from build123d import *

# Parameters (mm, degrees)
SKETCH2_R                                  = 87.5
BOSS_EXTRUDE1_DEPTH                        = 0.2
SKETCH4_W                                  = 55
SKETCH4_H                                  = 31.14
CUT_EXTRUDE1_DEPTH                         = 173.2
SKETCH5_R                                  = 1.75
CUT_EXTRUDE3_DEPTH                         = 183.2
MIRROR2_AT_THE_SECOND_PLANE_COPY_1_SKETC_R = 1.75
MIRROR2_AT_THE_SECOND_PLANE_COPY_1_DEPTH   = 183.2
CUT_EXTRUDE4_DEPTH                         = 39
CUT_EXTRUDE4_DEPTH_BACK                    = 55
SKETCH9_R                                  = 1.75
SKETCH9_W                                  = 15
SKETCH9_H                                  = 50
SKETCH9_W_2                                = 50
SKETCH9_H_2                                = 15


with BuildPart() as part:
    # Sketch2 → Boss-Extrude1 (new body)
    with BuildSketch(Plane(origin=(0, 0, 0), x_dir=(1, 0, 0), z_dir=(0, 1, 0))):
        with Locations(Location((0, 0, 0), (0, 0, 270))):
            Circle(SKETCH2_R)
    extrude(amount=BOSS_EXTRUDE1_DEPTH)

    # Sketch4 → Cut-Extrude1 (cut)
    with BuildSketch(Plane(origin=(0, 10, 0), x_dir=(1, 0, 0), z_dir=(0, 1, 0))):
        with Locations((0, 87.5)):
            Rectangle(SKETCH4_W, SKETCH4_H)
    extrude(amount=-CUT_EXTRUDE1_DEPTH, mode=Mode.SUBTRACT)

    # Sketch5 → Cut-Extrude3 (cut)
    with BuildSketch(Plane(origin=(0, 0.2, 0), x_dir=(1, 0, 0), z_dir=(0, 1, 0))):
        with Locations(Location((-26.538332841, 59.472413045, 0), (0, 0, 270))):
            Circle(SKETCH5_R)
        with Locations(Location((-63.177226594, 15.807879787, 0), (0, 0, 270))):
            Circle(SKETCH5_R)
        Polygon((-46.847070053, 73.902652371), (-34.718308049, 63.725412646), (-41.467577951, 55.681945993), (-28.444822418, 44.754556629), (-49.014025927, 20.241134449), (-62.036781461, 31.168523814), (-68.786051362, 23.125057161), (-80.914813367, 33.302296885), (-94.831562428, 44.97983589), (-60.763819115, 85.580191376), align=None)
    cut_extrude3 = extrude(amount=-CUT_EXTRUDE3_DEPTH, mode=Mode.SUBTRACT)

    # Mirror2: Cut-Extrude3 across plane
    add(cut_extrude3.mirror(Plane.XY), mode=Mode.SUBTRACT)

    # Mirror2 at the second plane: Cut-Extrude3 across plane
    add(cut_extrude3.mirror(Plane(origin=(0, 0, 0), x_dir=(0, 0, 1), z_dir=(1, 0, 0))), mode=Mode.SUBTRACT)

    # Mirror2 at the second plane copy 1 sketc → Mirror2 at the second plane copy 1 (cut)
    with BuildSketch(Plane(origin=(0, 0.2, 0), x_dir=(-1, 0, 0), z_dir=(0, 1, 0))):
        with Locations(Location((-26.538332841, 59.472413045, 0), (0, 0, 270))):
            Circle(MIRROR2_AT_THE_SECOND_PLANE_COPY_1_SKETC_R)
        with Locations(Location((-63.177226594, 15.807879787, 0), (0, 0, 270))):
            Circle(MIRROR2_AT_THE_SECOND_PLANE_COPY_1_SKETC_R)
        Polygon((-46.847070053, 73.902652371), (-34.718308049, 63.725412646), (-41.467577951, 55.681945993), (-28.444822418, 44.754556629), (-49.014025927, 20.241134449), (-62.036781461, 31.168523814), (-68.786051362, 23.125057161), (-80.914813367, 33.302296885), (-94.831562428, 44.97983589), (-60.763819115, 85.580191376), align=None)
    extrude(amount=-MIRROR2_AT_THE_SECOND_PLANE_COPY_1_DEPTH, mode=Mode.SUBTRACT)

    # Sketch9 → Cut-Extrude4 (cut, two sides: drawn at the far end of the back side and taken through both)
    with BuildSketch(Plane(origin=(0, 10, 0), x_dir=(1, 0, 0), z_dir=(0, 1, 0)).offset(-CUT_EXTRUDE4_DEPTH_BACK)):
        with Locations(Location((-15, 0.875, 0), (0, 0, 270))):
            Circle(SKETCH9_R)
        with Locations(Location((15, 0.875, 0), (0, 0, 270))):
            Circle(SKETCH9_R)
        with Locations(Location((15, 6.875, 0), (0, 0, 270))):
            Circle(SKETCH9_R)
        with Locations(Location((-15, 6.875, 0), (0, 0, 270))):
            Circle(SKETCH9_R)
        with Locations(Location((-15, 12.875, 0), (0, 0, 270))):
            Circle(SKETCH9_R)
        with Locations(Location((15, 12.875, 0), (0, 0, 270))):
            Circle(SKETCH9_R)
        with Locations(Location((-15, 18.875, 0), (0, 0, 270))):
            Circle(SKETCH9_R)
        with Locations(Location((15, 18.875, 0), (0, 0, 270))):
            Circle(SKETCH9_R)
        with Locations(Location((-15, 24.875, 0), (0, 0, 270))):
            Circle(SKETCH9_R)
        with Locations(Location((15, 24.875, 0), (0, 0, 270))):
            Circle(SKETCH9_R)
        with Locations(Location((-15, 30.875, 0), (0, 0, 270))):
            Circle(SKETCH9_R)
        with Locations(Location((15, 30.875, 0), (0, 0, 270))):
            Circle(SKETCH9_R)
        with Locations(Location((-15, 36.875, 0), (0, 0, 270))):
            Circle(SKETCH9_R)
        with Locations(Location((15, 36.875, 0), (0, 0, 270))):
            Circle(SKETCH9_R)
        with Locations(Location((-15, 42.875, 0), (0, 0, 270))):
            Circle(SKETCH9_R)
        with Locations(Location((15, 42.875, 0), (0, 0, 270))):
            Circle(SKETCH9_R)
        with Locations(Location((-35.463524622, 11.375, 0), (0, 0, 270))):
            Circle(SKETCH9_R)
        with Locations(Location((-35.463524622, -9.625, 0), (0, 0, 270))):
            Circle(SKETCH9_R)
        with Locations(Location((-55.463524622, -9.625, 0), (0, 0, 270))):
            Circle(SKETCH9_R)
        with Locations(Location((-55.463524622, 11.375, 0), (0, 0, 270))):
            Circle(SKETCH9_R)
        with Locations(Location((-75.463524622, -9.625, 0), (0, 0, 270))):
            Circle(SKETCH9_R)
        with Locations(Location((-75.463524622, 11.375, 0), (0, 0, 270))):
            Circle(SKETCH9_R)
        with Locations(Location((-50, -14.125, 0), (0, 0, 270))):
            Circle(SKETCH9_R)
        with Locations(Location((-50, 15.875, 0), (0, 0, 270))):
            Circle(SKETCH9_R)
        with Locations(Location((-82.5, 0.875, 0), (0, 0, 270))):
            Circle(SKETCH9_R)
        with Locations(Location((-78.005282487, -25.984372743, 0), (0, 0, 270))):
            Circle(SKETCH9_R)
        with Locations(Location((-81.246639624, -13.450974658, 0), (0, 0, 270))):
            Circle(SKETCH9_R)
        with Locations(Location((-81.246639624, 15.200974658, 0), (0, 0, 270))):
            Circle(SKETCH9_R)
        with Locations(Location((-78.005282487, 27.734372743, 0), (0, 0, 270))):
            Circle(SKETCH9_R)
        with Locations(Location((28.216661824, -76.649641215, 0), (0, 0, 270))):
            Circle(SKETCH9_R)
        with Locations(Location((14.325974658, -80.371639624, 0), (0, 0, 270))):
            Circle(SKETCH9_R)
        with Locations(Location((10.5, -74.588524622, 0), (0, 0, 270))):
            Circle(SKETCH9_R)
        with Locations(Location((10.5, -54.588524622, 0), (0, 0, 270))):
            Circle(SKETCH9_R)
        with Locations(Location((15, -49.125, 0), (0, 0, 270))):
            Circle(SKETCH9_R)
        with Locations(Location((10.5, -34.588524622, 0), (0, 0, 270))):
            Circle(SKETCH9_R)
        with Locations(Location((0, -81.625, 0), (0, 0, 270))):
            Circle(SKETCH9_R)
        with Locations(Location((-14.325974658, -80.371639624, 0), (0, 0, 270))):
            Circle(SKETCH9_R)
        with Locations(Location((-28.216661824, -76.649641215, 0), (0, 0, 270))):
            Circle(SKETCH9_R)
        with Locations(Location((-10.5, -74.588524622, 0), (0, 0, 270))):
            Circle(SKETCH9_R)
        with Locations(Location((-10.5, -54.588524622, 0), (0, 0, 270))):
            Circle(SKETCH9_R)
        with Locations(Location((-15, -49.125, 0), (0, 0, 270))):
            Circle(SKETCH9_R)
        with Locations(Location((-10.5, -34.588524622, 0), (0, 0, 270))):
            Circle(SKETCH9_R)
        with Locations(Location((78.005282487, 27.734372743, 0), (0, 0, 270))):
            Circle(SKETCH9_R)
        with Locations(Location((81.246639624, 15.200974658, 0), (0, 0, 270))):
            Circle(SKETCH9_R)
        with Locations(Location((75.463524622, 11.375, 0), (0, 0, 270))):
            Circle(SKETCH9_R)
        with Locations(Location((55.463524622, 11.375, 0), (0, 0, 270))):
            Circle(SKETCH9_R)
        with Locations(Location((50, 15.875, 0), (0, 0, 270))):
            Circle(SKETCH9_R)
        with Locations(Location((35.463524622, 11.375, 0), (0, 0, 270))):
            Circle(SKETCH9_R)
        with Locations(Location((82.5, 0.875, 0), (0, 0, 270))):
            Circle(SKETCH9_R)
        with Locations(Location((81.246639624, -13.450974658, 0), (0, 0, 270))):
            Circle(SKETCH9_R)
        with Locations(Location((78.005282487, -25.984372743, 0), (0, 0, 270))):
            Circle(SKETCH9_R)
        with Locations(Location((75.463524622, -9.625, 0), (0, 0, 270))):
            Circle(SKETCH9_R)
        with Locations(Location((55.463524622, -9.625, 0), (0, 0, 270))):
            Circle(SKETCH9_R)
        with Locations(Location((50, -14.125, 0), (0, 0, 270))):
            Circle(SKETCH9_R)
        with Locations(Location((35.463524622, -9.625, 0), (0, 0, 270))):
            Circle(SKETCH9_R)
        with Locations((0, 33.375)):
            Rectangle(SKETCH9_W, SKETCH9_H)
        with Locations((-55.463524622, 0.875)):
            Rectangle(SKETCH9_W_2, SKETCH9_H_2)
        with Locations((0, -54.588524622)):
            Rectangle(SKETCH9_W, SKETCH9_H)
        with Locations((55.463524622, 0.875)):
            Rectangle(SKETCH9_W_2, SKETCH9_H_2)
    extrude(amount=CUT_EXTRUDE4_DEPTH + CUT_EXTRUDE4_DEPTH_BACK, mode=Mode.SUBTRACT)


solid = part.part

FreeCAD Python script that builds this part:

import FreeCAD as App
import Part
import Sketcher
from FreeCAD import Vector
Q = App.Units.Quantity


def add_polygon(sketch, points):
    """Adds a closed chain of lines whose ends are joined by coincident constraints."""
    first, n = sketch.GeometryCount, len(points)
    for a, b in zip(points, points[1:] + points[:1]):
        sketch.addGeometry(Part.LineSegment(App.Vector(*a, 0), App.Vector(*b, 0)), False)
    for i in range(n):
        sketch.addConstraint(Sketcher.Constraint("Coincident", first + i, 2, first + (i + 1) % n, 1))

doc = App.newDocument("Part")
body = doc.addObject("PartDesign::Body", "Body")

sketch1 = body.newObject("Sketcher::SketchObject", "Sketch")
sketch1.AttachmentSupport = (doc.getObject("XZ_Plane"), [""])
sketch1.MapMode = "FlatFace"
sketch1.addGeometry(Part.Circle(Vector(0, 0, 0), Vector(0, 0, 1), 87.5), False)
sketch1.addConstraint([
    Sketcher.Constraint("Coincident", 0, 3, -1, 1),
    Sketcher.Constraint("Diameter", 0, 175.0),
])
pad1 = body.newObject("PartDesign::Pad", "Pad")
pad1.Profile = sketch1
pad1.Length = 0.2
pad1.Reversed = True

sketch2 = body.newObject("Sketcher::SketchObject", "Sketch001")
sketch2.AttachmentSupport = (doc.getObject("XZ_Plane"), [""])
sketch2.MapMode = "FlatFace"
sketch2.AttachmentOffset = App.Placement(Vector(0, 0, -10), App.Rotation())
add_polygon(sketch2, [(-27.5, -103.07), (-27.5, -71.93), (27.5, -71.93), (27.5, -103.07)])
sketch2.addConstraint([
    Sketcher.Constraint("Vertical", 0),
    Sketcher.Constraint("Horizontal", 1),
    Sketcher.Constraint("Vertical", 2),
    Sketcher.Constraint("Horizontal", 3),
    Sketcher.Constraint("DistanceX", 1, 1, 1, 2, 55.0),
    Sketcher.Constraint("DistanceY", 0, 1, 0, 2, 31.14),
    Sketcher.Constraint("DistanceX", 0, 2, -1, 1, 27.5),
    Sketcher.Constraint("DistanceY", 0, 2, -1, 1, 71.93),
])
pocket1 = body.newObject("PartDesign::Pocket", "Pocket")
pocket1.Profile = sketch2
pocket1.Length = 173.2
pocket1.Reversed = True

sketch3 = body.newObject("Sketcher::SketchObject", "Sketch002")
sketch3.AttachmentSupport = (doc.getObject("XZ_Plane"), [""])
sketch3.MapMode = "FlatFace"
sketch3.AttachmentOffset = App.Placement(Vector(0, 0, -0.2), App.Rotation())
sketch3.addGeometry(Part.Circle(Vector(-26.538333, -59.472413, 0), Vector(0, 0, 1), 1.75), False)
sketch3.addGeometry(Part.Circle(Vector(-63.177227, -15.80788, 0), Vector(0, 0, 1), 1.75), False)
add_polygon(sketch3, [(-34.718308, -63.725413), (-46.84707, -73.902652), (-60.763819, -85.580191), (-94.831562, -44.979836), (-80.914813, -33.302297), (-68.786051, -23.125057), (-62.036781, -31.168524), (-49.014026, -20.241134), (-28.444822, -44.754557), (-41.467578, -55.681946)])
sketch3.addConstraint([
    Sketcher.Constraint("Equal", 0, 1),
    Sketcher.Constraint("Parallel", 2, 3),
    Sketcher.Constraint("Perpendicular", 3, 4),
    Sketcher.Constraint("Perpendicular", 4, 5),
    Sketcher.Constraint("Parallel", 5, 6),
    Sketcher.Constraint("Perpendicular", 6, 7),
    Sketcher.Constraint("Perpendicular", 7, 8),
    Sketcher.Constraint("Perpendicular", 8, 9),
    Sketcher.Constraint("Perpendicular", 9, 10),
    Sketcher.Constraint("Perpendicular", 10, 11),
    Sketcher.Constraint("Equal", 3, 5),
    Sketcher.Constraint("Equal", 2, 6),
    Sketcher.Constraint("Equal", 7, 11),
    Sketcher.Constraint("Diameter", 0, 3.5),
    Sketcher.Constraint("Angle", 2, Q("-140 deg")),
    Sketcher.Constraint("Distance", 4, 53.0),
    Sketcher.Constraint("Distance", 8, 17.0),
    Sketcher.Constraint("Distance", 9, 32.0),
    Sketcher.Constraint("DistanceY", 11, 2, 0, 3, 4.253),
    Sketcher.Constraint("DistanceX", 1, 3, 8, 2, 14.163201),
    Sketcher.Constraint("DistanceY", 1, 3, -1, 1, 15.80788),
    Sketcher.Constraint("DistanceX", 2, 2, -1, 1, 46.84707),
    Sketcher.Constraint("DistanceX", 3, 2, -1, 1, 60.763819),
    Sketcher.Constraint("DistanceY", 3, 2, -1, 1, 85.580191),
    Sketcher.Constraint("DistanceX", 6, 2, -1, 1, 68.786051),
    Sketcher.Constraint("DistanceX", 4, 2, 0, 3, 68.29323),
])
pocket2 = body.newObject("PartDesign::Pocket", "Pocket001")
pocket2.Profile = sketch3
pocket2.Length = 183.2
pocket2.Reversed = True
doc.recompute()

mirrored = body.newObject("PartDesign::Mirrored", "Mirrored")
mirrored.Originals = [pocket2]
mirrored.MirrorPlane = (doc.getObject("XY_Plane"), [""])
body.Tip = mirrored
doc.recompute()

mirrored2 = body.newObject("PartDesign::Mirrored", "Mirrored001")
mirrored2.Originals = [pocket2]
mirrored2.MirrorPlane = (doc.getObject("YZ_Plane"), [""])
body.Tip = mirrored2

sketch4 = body.newObject("Sketcher::SketchObject", "Sketch003")
sketch4.AttachmentSupport = (doc.getObject("XZ_Plane"), [""])
sketch4.MapMode = "FlatFace"
sketch4.AttachmentOffset = App.Placement(Vector(0, 0, -0.2), App.Rotation())
sketch4.addGeometry(Part.Circle(Vector(26.538333, 59.472413, 0), Vector(0, 0, 1), 1.75), False)
sketch4.addGeometry(Part.Circle(Vector(63.177227, 15.80788, 0), Vector(0, 0, 1), 1.75), False)
add_polygon(sketch4, [(34.718308, 63.725413), (46.84707, 73.902652), (60.763819, 85.580191), (94.831562, 44.979836), (80.914813, 33.302297), (68.786051, 23.125057), (62.036781, 31.168524), (49.014026, 20.241134), (28.444822, 44.754557), (41.467578, 55.681946)])
sketch4.addConstraint([
    Sketcher.Constraint("Equal", 0, 1),
    Sketcher.Constraint("Parallel", 2, 3),
    Sketcher.Constraint("Perpendicular", 3, 4),
    Sketcher.Constraint("Perpendicular", 4, 5),
    Sketcher.Constraint("Parallel", 5, 6),
    Sketcher.Constraint("Perpendicular", 6, 7),
    Sketcher.Constraint("Perpendicular", 7, 8),
    Sketcher.Constraint("Perpendicular", 8, 9),
    Sketcher.Constraint("Perpendicular", 9, 10),
    Sketcher.Constraint("Perpendicular", 10, 11),
    Sketcher.Constraint("Equal", 3, 5),
    Sketcher.Constraint("Equal", 2, 6),
    Sketcher.Constraint("Equal", 7, 11),
    Sketcher.Constraint("Diameter", 0, 3.5),
    Sketcher.Constraint("Angle", 2, Q("40 deg")),
    Sketcher.Constraint("Distance", 4, 53.0),
    Sketcher.Constraint("Distance", 8, 17.0),
    Sketcher.Constraint("Distance", 9, 32.0),
    Sketcher.Constraint("DistanceY", 0, 3, 11, 2, 4.253),
    Sketcher.Constraint("DistanceX", 8, 2, 1, 3, 14.163201),
    Sketcher.Constraint("DistanceY", -1, 1, 1, 3, 15.80788),
    Sketcher.Constraint("DistanceX", -1, 1, 2, 2, 46.84707),
    Sketcher.Constraint("DistanceX", -1, 1, 3, 2, 60.763819),
    Sketcher.Constraint("DistanceY", -1, 1, 3, 2, 85.580191),
    Sketcher.Constraint("DistanceX", -1, 1, 6, 2, 68.786051),
    Sketcher.Constraint("DistanceX", 0, 3, 4, 2, 68.29323),
])
pocket3 = body.newObject("PartDesign::Pocket", "Pocket002")
pocket3.Profile = sketch4
pocket3.Length = 183.2
pocket3.Reversed = True

sketch5 = body.newObject("Sketcher::SketchObject", "Sketch004")
sketch5.AttachmentSupport = (doc.getObject("XZ_Plane"), [""])
sketch5.MapMode = "FlatFace"
sketch5.AttachmentOffset = App.Placement(Vector(0, 0, -10), App.Rotation())
sketch5.addGeometry(Part.Circle(Vector(-15, -0.875, 0), Vector(0, 0, 1), 1.75), False)
sketch5.addGeometry(Part.Circle(Vector(15, -0.875, 0), Vector(0, 0, 1), 1.75), False)
sketch5.addGeometry(Part.Circle(Vector(15, -6.875, 0), Vector(0, 0, 1), 1.75), False)
sketch5.addGeometry(Part.Circle(Vector(-15, -6.875, 0), Vector(0, 0, 1), 1.75), False)
sketch5.addGeometry(Part.Circle(Vector(-15, -12.875, 0), Vector(0, 0, 1), 1.75), False)
sketch5.addGeometry(Part.Circle(Vector(15, -12.875, 0), Vector(0, 0, 1), 1.75), False)
sketch5.addGeometry(Part.Circle(Vector(-15, -18.875, 0), Vector(0, 0, 1), 1.75), False)
sketch5.addGeometry(Part.Circle(Vector(15, -18.875, 0), Vector(0, 0, 1), 1.75), False)
sketch5.addGeometry(Part.Circle(Vector(-15, -24.875, 0), Vector(0, 0, 1), 1.75), False)
sketch5.addGeometry(Part.Circle(Vector(15, -24.875, 0), Vector(0, 0, 1), 1.75), False)
sketch5.addGeometry(Part.Circle(Vector(-15, -30.875, 0), Vector(0, 0, 1), 1.75), False)
sketch5.addGeometry(Part.Circle(Vector(15, -30.875, 0), Vector(0, 0, 1), 1.75), False)
sketch5.addGeometry(Part.Circle(Vector(-15, -36.875, 0), Vector(0, 0, 1), 1.75), False)
sketch5.addGeometry(Part.Circle(Vector(15, -36.875, 0), Vector(0, 0, 1), 1.75), False)
sketch5.addGeometry(Part.Circle(Vector(-15, -42.875, 0), Vector(0, 0, 1), 1.75), False)
sketch5.addGeometry(Part.Circle(Vector(15, -42.875, 0), Vector(0, 0, 1), 1.75), False)
sketch5.addGeometry(Part.Circle(Vector(-35.463525, -11.375, 0), Vector(0, 0, 1), 1.75), False)
sketch5.addGeometry(Part.Circle(Vector(-35.463525, 9.625, 0), Vector(0, 0, 1), 1.75), False)
sketch5.addGeometry(Part.Circle(Vector(-55.463525, 9.625, 0), Vector(0, 0, 1), 1.75), False)
sketch5.addGeometry(Part.Circle(Vector(-55.463525, -11.375, 0), Vector(0, 0, 1), 1.75), False)
sketch5.addGeometry(Part.Circle(Vector(-75.463525, 9.625, 0), Vector(0, 0, 1), 1.75), False)
sketch5.addGeometry(Part.Circle(Vector(-75.463525, -11.375, 0), Vector(0, 0, 1), 1.75), False)
sketch5.addGeometry(Part.Circle(Vector(-50, 14.125, 0), Vector(0, 0, 1), 1.75), False)
sketch5.addGeometry(Part.Circle(Vector(-50, -15.875, 0), Vector(0, 0, 1), 1.75), False)
sketch5.addGeometry(Part.Circle(Vector(-82.5, -0.875, 0), Vector(0, 0, 1), 1.75), False)
sketch5.addGeometry(Part.Circle(Vector(-78.005282, 25.984373, 0), Vector(0, 0, 1), 1.75), False)
sketch5.addGeometry(Part.Circle(Vector(-81.24664, 13.450975, 0), Vector(0, 0, 1), 1.75), False)
sketch5.addGeometry(Part.Circle(Vector(-81.24664, -15.200975, 0), Vector(0, 0, 1), 1.75), False)
sketch5.addGeometry(Part.Circle(Vector(-78.005282, -27.734373, 0), Vector(0, 0, 1), 1.75), False)
sketch5.addGeometry(Part.Circle(Vector(28.216662, 76.649641, 0), Vector(0, 0, 1), 1.75), False)
sketch5.addGeometry(Part.Circle(Vector(14.325975, 80.37164, 0), Vector(0, 0, 1), 1.75), False)
sketch5.addGeometry(Part.Circle(Vector(10.5, 74.588525, 0), Vector(0, 0, 1), 1.75), False)
sketch5.addGeometry(Part.Circle(Vector(10.5, 54.588525, 0), Vector(0, 0, 1), 1.75), False)
sketch5.addGeometry(Part.Circle(Vector(15, 49.125, 0), Vector(0, 0, 1), 1.75), False)
sketch5.addGeometry(Part.Circle(Vector(10.5, 34.588525, 0), Vector(0, 0, 1), 1.75), False)
sketch5.addGeometry(Part.Circle(Vector(0, 81.625, 0), Vector(0, 0, 1), 1.75), False)
sketch5.addGeometry(Part.Circle(Vector(-14.325975, 80.37164, 0), Vector(0, 0, 1), 1.75), False)
sketch5.addGeometry(Part.Circle(Vector(-28.216662, 76.649641, 0), Vector(0, 0, 1), 1.75), False)
sketch5.addGeometry(Part.Circle(Vector(-10.5, 74.588525, 0), Vector(0, 0, 1), 1.75), False)
sketch5.addGeometry(Part.Circle(Vector(-10.5, 54.588525, 0), Vector(0, 0, 1), 1.75), False)
sketch5.addGeometry(Part.Circle(Vector(-15, 49.125, 0), Vector(0, 0, 1), 1.75), False)
sketch5.addGeometry(Part.Circle(Vector(-10.5, 34.588525, 0), Vector(0, 0, 1), 1.75), False)
sketch5.addGeometry(Part.Circle(Vector(78.005282, -27.734373, 0), Vector(0, 0, 1), 1.75), False)
sketch5.addGeometry(Part.Circle(Vector(81.24664, -15.200975, 0), Vector(0, 0, 1), 1.75), False)
sketch5.addGeometry(Part.Circle(Vector(75.463525, -11.375, 0), Vector(0, 0, 1), 1.75), False)
sketch5.addGeometry(Part.Circle(Vector(55.463525, -11.375, 0), Vector(0, 0, 1), 1.75), False)
sketch5.addGeometry(Part.Circle(Vector(50, -15.875, 0), Vector(0, 0, 1), 1.75), False)
sketch5.addGeometry(Part.Circle(Vector(35.463525, -11.375, 0), Vector(0, 0, 1), 1.75), False)
sketch5.addGeometry(Part.Circle(Vector(82.5, -0.875, 0), Vector(0, 0, 1), 1.75), False)
sketch5.addGeometry(Part.Circle(Vector(81.24664, 13.450975, 0), Vector(0, 0, 1), 1.75), False)
sketch5.addGeometry(Part.Circle(Vector(78.005282, 25.984373, 0), Vector(0, 0, 1), 1.75), False)
sketch5.addGeometry(Part.Circle(Vector(75.463525, 9.625, 0), Vector(0, 0, 1), 1.75), False)
sketch5.addGeometry(Part.Circle(Vector(55.463525, 9.625, 0), Vector(0, 0, 1), 1.75), False)
sketch5.addGeometry(Part.Circle(Vector(50, 14.125, 0), Vector(0, 0, 1), 1.75), False)
sketch5.addGeometry(Part.Circle(Vector(35.463525, 9.625, 0), Vector(0, 0, 1), 1.75), False)
add_polygon(sketch5, [(-7.5, -58.375), (-7.5, -8.375), (7.5, -8.375), (7.5, -58.375)])
add_polygon(sketch5, [(-80.463525, -8.375), (-80.463525, 6.625), (-30.463525, 6.625), (-30.463525, -8.375)])
add_polygon(sketch5, [(-7.5, 29.588525), (-7.5, 79.588525), (7.5, 79.588525), (7.5, 29.588525)])
add_polygon(sketch5, [(30.463525, -8.375), (30.463525, 6.625), (80.463525, 6.625), (80.463525, -8.375)])
sketch5.addConstraint([
    Sketcher.Constraint("Vertical", 55),
    Sketcher.Constraint("Horizontal", 56),
    Sketcher.Constraint("Vertical", 57),
    Sketcher.Constraint("Horizontal", 58),
    Sketcher.Constraint("Vertical", 59),
    Sketcher.Constraint("Horizontal", 60),
    Sketcher.Constraint("Vertical", 61),
    Sketcher.Constraint("Horizontal", 62),
    Sketcher.Constraint("Vertical", 63),
    Sketcher.Constraint("Horizontal", 64),
    Sketcher.Constraint("Vertical", 65),
    Sketcher.Constraint("Horizontal", 66),
    Sketcher.Constraint("Vertical", 67),
    Sketcher.Constraint("Horizontal", 68),
    Sketcher.Constraint("Vertical", 69),
    Sketcher.Constraint("Horizontal", 70),
    Sketcher.Constraint("Equal", 0, 1),
    Sketcher.Constraint("Equal", 1, 2),
    Sketcher.Constraint("Equal", 2, 3),
    Sketcher.Constraint("Equal", 3, 4),
    Sketcher.Constraint("Equal", 4, 5),
    Sketcher.Constraint("Equal", 5, 6),
    Sketcher.Constraint("Equal", 6, 7),
    Sketcher.Constraint("Equal", 7, 8),
    Sketcher.Constraint("Equal", 8, 9),
    Sketcher.Constraint("Equal", 9, 10),
    Sketcher.Constraint("Equal", 10, 11),
    Sketcher.Constraint("Equal", 11, 12),
    Sketcher.Constraint("Equal", 12, 13),
    Sketcher.Constraint("Equal", 13, 14),
    Sketcher.Constraint("Equal", 14, 15),
    Sketcher.Constraint("Equal", 15, 16),
    Sketcher.Constraint("Equal", 16, 17),
    Sketcher.Constraint("Equal", 17, 18),
    Sketcher.Constraint("Equal", 18, 19),
    Sketcher.Constraint("Equal", 19, 20),
    Sketcher.Constraint("Equal", 20, 21),
    Sketcher.Constraint("Equal", 21, 22),
    Sketcher.Constraint("Equal", 22, 23),
    Sketcher.Constraint("Equal", 23, 24),
    Sketcher.Constraint("Equal", 24, 25),
    Sketcher.Constraint("Equal", 25, 26),
    Sketcher.Constraint("Equal", 26, 27),
    Sketcher.Constraint("Equal", 27, 28),
    Sketcher.Constraint("Equal", 28, 29),
    Sketcher.Constraint("Equal", 29, 30),
    Sketcher.Constraint("Equal", 30, 31),
    Sketcher.Constraint("Equal", 31, 32),
    Sketcher.Constraint("Equal", 32, 33),
    Sketcher.Constraint("Equal", 33, 34),
    Sketcher.Constraint("Equal", 34, 35),
    Sketcher.Constraint("Equal", 35, 36),
    Sketcher.Constraint("Equal", 36, 37),
    Sketcher.Constraint("Equal", 37, 38),
    Sketcher.Constraint("Equal", 38, 39),
    Sketcher.Constraint("Equal", 39, 40),
    Sketcher.Constraint("Equal", 40, 41),
    Sketcher.Constraint("Equal", 41, 42),
    Sketcher.Constraint("Equal", 42, 43),
    Sketcher.Constraint("Equal", 43, 44),
    Sketcher.Constraint("Equal", 44, 45),
    Sketcher.Constraint("Equal", 45, 46),
    Sketcher.Constraint("Equal", 46, 47),
    Sketcher.Constraint("Equal", 47, 48),
    Sketcher.Constraint("Equal", 48, 49),
    Sketcher.Constraint("Equal", 49, 50),
    Sketcher.Constraint("Equal", 50, 51),
    Sketcher.Constraint("Equal", 51, 52),
    Sketcher.Constraint("Equal", 52, 53),
    Sketcher.Constraint("Equal", 53, 54),
    Sketcher.Constraint("Symmetric", 0, 3, 1, 3, -2),
    Sketcher.Constraint("Symmetric", 2, 3, 3, 3, -2),
    Sketcher.Constraint("Symmetric", 4, 3, 5, 3, -2),
    Sketcher.Constraint("Symmetric", 6, 3, 7, 3, -2),
    Sketcher.Constraint("Symmetric", 8, 3, 9, 3, -2),
    Sketcher.Constraint("Symmetric", 10, 3, 11, 3, -2),
    Sketcher.Constraint("Symmetric", 12, 3, 13, 3, -2),
    Sketcher.Constraint("Symmetric", 14, 3, 15, 3, -2),
    Sketcher.Constraint("Symmetric", 30, 3, 36, 3, -2),
    Sketcher.Constraint("Symmetric", 29, 3, 37, 3, -2),
    Sketcher.Constraint("Symmetric", 31, 3, 38, 3, -2),
    Sketcher.Constraint("Symmetric", 32, 3, 39, 3, -2),
    Sketcher.Constraint("Symmetric", 33, 3, 40, 3, -2),
    Sketcher.Constraint("Symmetric", 34, 3, 41, 3, -2),
    Sketcher.Constraint("Symmetric", 28, 3, 42, 3, -2),
    Sketcher.Constraint("Symmetric", 27, 3, 43, 3, -2),
    Sketcher.Constraint("Symmetric", 21, 3, 44, 3, -2),
    Sketcher.Constraint("Symmetric", 19, 3, 45, 3, -2),
    Sketcher.Constraint("Symmetric", 23, 3, 46, 3, -2),
    Sketcher.Constraint("Symmetric", 16, 3, 47, 3, -2),
    Sketcher.Constraint("Symmetric", 24, 3, 48, 3, -2),
    Sketcher.Constraint("Symmetric", 26, 3, 49, 3, -2),
    Sketcher.Constraint("Symmetric", 25, 3, 50, 3, -2),
    Sketcher.Constraint("Symmetric", 20, 3, 51, 3, -2),
    Sketcher.Constraint("Symmetric", 18, 3, 52, 3, -2),
    Sketcher.Constraint("Symmetric", 22, 3, 53, 3, -2),
    Sketcher.Constraint("Symmetric", 17, 3, 54, 3, -2),
    Sketcher.Constraint("Symmetric", 60, 2, 67, 2, -2),
    Sketcher.Constraint("Symmetric", 62, 2, 69, 2, -2),
    Sketcher.Constraint("PointOnObject", 35, 3, -2),
    Sketcher.Constraint("Horizontal", 17, 3, 18, 3),
    Sketcher.Constraint("Horizontal", 16, 3, 19, 3),
    Sketcher.Constraint("Horizontal", 18, 3, 20, 3),
    Sketcher.Constraint("Horizontal", 19, 3, 21, 3),
    Sketcher.Constraint("Horizontal", 1, 3, 24, 3),
    Sketcher.Constraint("Horizontal", 56, 2, 61, 2),
    Sketcher.Constraint("Vertical", 1, 3, 2, 3),
    Sketcher.Constraint("Vertical", 3, 3, 4, 3),
    Sketcher.Constraint("Vertical", 4, 3, 6, 3),
    Sketcher.Constraint("Vertical", 6, 3, 8, 3),
    Sketcher.Constraint("Vertical", 8, 3, 10, 3),
    Sketcher.Constraint("Vertical", 10, 3, 12, 3),
    Sketcher.Constraint("Vertical", 12, 3, 14, 3),
    Sketcher.Constraint("Vertical", 16, 3, 17, 3),
    Sketcher.Constraint("Vertical", 18, 3, 19, 3),
    Sketcher.Constraint("Vertical", 20, 3, 21, 3),
    Sketcher.Constraint("Vertical", 22, 3, 23, 3),
    Sketcher.Constraint("Vertical", 26, 3, 27, 3),
    Sketcher.Constraint("Vertical", 25, 3, 28, 3),
    Sketcher.Constraint("Vertical", 31, 3, 32, 3),
    Sketcher.Constraint("Vertical", 15, 3, 33, 3),
    Sketcher.Constraint("Vertical", 32, 3, 34, 3),
    Sketcher.Constraint("Vertical", 58, 2, 63, 2),
    Sketcher.Constraint("Vertical", 57, 2, 64, 2),
    Sketcher.Constraint("Equal", 70, 55),
    Sketcher.Constraint("Equal", 66, 59),
    Sketcher.Constraint("Equal", 57, 63),
    Sketcher.Constraint("Diameter", 0, 3.5),
    Sketcher.Constraint("DistanceX", 56, 1, 56, 2, 15.0),
    Sketcher.Constraint("DistanceX", 60, 1, 60, 2, 50.0),
    Sketcher.Constraint("DistanceX", 0, 3, -1, 1, 15.0),
    Sketcher.Constraint("DistanceX", 22, 3, -1, 1, 50.0),
    Sketcher.Constraint("DistanceX", 24, 3, -1, 1, 82.5),
    Sketcher.Constraint("DistanceX", -1, 1, 31, 3, 10.5),
    Sketcher.Constraint("DistanceX", 55, 2, -1, 1, 7.5),
    Sketcher.Constraint("DistanceY", 0, 3, -1, 1, 0.875),
    Sketcher.Constraint("DistanceY", 2, 3, -1, 1, 6.875),
    Sketcher.Constraint("DistanceY", 4, 3, -1, 1, 12.875),
    Sketcher.Constraint("DistanceY", 6, 3, -1, 1, 18.875),
    Sketcher.Constraint("DistanceY", 8, 3, -1, 1, 24.875),
    Sketcher.Constraint("DistanceY", 10, 3, -1, 1, 30.875),
    Sketcher.Constraint("DistanceY", 12, 3, -1, 1, 36.875),
    Sketcher.Constraint("DistanceY", 14, 3, -1, 1, 42.875),
    Sketcher.Constraint("DistanceY", 16, 3, -1, 1, 11.375),
    Sketcher.Constraint("DistanceY", -1, 1, 17, 3, 9.625),
    Sketcher.Constraint("DistanceY", -1, 1, 22, 3, 14.125),
    Sketcher.Constraint("DistanceY", 23, 3, -1, 1, 15.875),
    Sketcher.Constraint("DistanceY", -1, 1, 33, 3, 49.125),
    Sketcher.Constraint("DistanceY", -1, 1, 35, 3, 81.625),
    Sketcher.Constraint("DistanceY", 55, 2, -1, 1, 8.375),
    Sketcher.Constraint("DistanceX", 26, 3, -1, 1, 81.24664),
    Sketcher.Constraint("DistanceX", -1, 1, 29, 3, 28.216662),
    Sketcher.Constraint("DistanceY", -1, 1, 29, 3, 76.649641),
    Sketcher.Constraint("DistanceY", -1, 1, 30, 3, 80.37164),
    Sketcher.Constraint("DistanceX", 16, 3, -1, 1, 35.463525),
    Sketcher.Constraint("DistanceX", 18, 3, -1, 1, 55.463525),
    Sketcher.Constraint("DistanceX", 20, 3, -1, 1, 75.463525),
    Sketcher.Constraint("DistanceX", 25, 3, -1, 1, 78.005282),
    Sketcher.Constraint("DistanceY", -1, 1, 25, 3, 25.984373),
    Sketcher.Constraint("DistanceY", -1, 1, 26, 3, 13.450975),
    Sketcher.Constraint("DistanceY", 27, 3, -1, 1, 15.200975),
    Sketcher.Constraint("DistanceY", 28, 3, -1, 1, 27.734373),
    Sketcher.Constraint("DistanceX", -1, 1, 30, 3, 14.325975),
    Sketcher.Constraint("DistanceY", -1, 1, 31, 3, 74.588525),
    Sketcher.Constraint("DistanceY", -1, 1, 32, 3, 54.588525),
    Sketcher.Constraint("DistanceY", -1, 1, 34, 3, 34.588525),
    Sketcher.Constraint("DistanceX", 59, 2, -1, 1, 80.463525),
    Sketcher.Constraint("DistanceY", -1, 1, 63, 2, 79.588525),
])
pocket4 = body.newObject("PartDesign::Pocket", "Pocket003")
pocket4.Profile = sketch5
pocket4.Type = "ThroughAll"
pocket4.Midplane = True

doc.recompute()
